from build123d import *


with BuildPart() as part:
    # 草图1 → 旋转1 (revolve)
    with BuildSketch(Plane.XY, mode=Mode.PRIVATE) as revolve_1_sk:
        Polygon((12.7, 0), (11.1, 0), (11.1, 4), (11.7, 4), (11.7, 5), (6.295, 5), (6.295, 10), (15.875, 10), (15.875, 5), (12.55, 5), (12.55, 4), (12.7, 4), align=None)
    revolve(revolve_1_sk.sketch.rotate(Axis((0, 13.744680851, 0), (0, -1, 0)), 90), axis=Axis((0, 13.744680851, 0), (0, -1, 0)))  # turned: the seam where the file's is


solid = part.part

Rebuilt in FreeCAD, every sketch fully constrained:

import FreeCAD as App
import Part
import Sketcher

V = App.Vector
Q = App.Units.Quantity


def add_polygon(sketch, points):
    """Adds a closed chain of lines whose ends are joined by coincident constraints."""
    first, n = sketch.GeometryCount, len(points)
    for a, b in zip(points, points[1:] + points[:1]):
        sketch.addGeometry(Part.LineSegment(App.Vector(*a, 0), App.Vector(*b, 0)), False)
    for i in range(n):
        sketch.addConstraint(Sketcher.Constraint("Coincident", first + i, 2, first + (i + 1) % n, 1))

doc = App.newDocument("Part")
body = doc.addObject("PartDesign::Body", "Body")

sketch1 = body.newObject("Sketcher::SketchObject", "Sketch")
sketch1.AttachmentSupport = (doc.getObject("XY_Plane"), [""])
sketch1.MapMode = "FlatFace"
add_polygon(sketch1, [(11.1, 0), (12.7, 0), (12.7, 4), (12.55, 4), (12.55, 5), (15.88, 5), (15.88, 10), (6.29, 10), (6.29, 5), (11.7, 5), (11.7, 4), (11.1, 4)])
sketch1.addConstraint([
    Sketcher.Constraint("Horizontal", 0),
    Sketcher.Constraint("Vertical", 1),
    Sketcher.Constraint("Horizontal", 2),
    Sketcher.Constraint("Vertical", 3),
    Sketcher.Constraint("Horizontal", 4),
    Sketcher.Constraint("Vertical", 5),
    Sketcher.Constraint("Horizontal", 6),
    Sketcher.Constraint("Vertical", 7),
    Sketcher.Constraint("Horizontal", 8),
    Sketcher.Constraint("Vertical", 9),
    Sketcher.Constraint("Horizontal", 10),
    Sketcher.Constraint("Vertical", 11),
    Sketcher.Constraint("PointOnObject", 0, 2, -1),
    Sketcher.Constraint("Horizontal", 4, 2, 7, 2),
    Sketcher.Constraint("Horizontal", 2, 2, 9, 2),
    Sketcher.Constraint("DistanceY", 1, 1, 1, 2, Q("4 mm")),
    Sketcher.Constraint("DistanceY", 3, 1, 3, 2, Q("1 mm")),
    Sketcher.Constraint("DistanceY", 5, 1, 5, 2, Q("5 mm")),
    Sketcher.Constraint("DistanceX", 0, 1, 0, 2, Q("1.6 mm")),
    Sketcher.Constraint("DistanceX", 10, 2, 10, 1, Q("0.6 mm")),
    Sketcher.Constraint("DistanceX", 2, 2, 2, 1, Q("0.15 mm")),
    Sketcher.Constraint("DistanceX", 6, 2, 6, 1, Q("9.58 mm")),
    Sketcher.Constraint("DistanceX", -1, 1, 0, 2, Q("12.7 mm")),
    Sketcher.Constraint("DistanceX", 4, 1, 4, 2, Q("3.325 mm")),
])
revolution = body.newObject("PartDesign::Revolution", "Revolution")
revolution.Profile = sketch1
revolution.ReferenceAxis = (sketch1, ["V_Axis"])
revolution.Angle = 360

doc.recompute()
